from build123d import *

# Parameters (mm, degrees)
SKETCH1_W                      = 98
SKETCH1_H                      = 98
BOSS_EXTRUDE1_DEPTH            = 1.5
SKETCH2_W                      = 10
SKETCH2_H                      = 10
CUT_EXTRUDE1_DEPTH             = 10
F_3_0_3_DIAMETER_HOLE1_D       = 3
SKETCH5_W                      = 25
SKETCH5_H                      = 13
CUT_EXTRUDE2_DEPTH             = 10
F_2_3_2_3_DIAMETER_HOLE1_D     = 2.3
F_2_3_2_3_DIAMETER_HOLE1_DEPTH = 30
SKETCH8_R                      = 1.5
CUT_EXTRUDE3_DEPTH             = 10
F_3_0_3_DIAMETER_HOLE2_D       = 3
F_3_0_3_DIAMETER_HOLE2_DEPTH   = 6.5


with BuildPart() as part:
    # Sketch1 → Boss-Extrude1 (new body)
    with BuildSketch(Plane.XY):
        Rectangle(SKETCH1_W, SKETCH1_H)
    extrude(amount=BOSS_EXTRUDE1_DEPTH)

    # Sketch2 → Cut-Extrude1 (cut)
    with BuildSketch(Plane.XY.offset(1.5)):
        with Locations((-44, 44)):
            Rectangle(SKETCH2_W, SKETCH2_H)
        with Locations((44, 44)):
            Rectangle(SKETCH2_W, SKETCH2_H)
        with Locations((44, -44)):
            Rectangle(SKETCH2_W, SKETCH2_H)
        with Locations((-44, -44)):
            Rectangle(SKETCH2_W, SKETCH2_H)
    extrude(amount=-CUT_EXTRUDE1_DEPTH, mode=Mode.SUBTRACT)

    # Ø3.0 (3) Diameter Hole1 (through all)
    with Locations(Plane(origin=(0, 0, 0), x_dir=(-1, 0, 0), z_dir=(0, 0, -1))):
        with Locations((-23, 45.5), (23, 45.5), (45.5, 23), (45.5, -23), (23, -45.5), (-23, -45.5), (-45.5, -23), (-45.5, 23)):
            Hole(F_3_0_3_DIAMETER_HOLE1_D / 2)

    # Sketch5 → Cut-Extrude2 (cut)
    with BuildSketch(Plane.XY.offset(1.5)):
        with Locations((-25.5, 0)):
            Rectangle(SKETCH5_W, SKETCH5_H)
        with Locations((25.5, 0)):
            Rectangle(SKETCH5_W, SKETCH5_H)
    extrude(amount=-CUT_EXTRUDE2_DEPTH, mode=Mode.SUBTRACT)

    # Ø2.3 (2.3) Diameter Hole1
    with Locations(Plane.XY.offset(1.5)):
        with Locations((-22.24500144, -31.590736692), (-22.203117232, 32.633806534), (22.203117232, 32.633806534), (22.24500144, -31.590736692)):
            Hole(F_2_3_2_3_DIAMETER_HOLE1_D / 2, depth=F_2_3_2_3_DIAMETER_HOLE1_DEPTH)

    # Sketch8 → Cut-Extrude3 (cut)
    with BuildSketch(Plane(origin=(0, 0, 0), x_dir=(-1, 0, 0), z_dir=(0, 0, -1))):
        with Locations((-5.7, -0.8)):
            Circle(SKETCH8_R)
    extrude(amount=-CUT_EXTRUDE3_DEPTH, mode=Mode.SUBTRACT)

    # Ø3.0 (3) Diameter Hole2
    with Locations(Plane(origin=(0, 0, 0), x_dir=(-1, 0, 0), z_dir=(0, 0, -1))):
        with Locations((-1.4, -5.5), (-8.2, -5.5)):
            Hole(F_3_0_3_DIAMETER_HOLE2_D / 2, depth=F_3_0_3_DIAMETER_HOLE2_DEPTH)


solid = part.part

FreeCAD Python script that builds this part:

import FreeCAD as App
import Part
import Sketcher

V = App.Vector

doc = App.newDocument("Part")
body = doc.addObject("PartDesign::Body", "Body")

# Sketch on XY plane
sketch1 = doc.addObject("Sketcher::SketchObject", "Sketch")
body.addObject(sketch1)
sketch1.AttachmentSupport = (doc.XY_Plane, [""])
sketch1.MapMode = "FlatFace"
sketch1.addGeometry(Part.LineSegment(V(-49, 49, 0), V(-49, -49, 0)), False)
sketch1.addGeometry(Part.LineSegment(V(-49, -49, 0), V(49, -49, 0)), False)
sketch1.addGeometry(Part.LineSegment(V(49, -49, 0), V(49, 49, 0)), False)
sketch1.addGeometry(Part.LineSegment(V(49, 49, 0), V(-49, 49, 0)), False)
sketch1.addConstraint(Sketcher.Constraint("Coincident", 0, 2, 1, 1))
sketch1.addConstraint(Sketcher.Constraint("Coincident", 1, 2, 2, 1))
sketch1.addConstraint(Sketcher.Constraint("Coincident", 2, 2, 3, 1))
sketch1.addConstraint(Sketcher.Constraint("Coincident", 3, 2, 0, 1))
sketch1.addConstraint(Sketcher.Constraint("Vertical", 0))
sketch1.addConstraint(Sketcher.Constraint("Horizontal", 1))
sketch1.addConstraint(Sketcher.Constraint("Vertical", 2))
sketch1.addConstraint(Sketcher.Constraint("Horizontal", 3))
sketch1.addConstraint(Sketcher.Constraint("Symmetric", 0, 2, 2, 2, -1, 1))
sketch1.addConstraint(Sketcher.Constraint("Equal", 3, 0))
sketch1.addConstraint(Sketcher.Constraint("DistanceX", 1, 1, 1, 2, 98.0))
pad1 = doc.addObject("PartDesign::Pad", "Pad")
body.addObject(pad1)
pad1.Profile = sketch1
pad1.Length = 1.5

# Sketch on XY plane
sketch2 = doc.addObject("Sketcher::SketchObject", "Sketch001")
body.addObject(sketch2)
sketch2.AttachmentSupport = (doc.XY_Plane, [""])
sketch2.MapMode = "FlatFace"
sketch2.AttachmentOffset = App.Placement(V(0, 0, 1.5), App.Rotation())
sketch2.addGeometry(Part.LineSegment(V(-49, 49, 0), V(-49, 39, 0)), False)
sketch2.addGeometry(Part.LineSegment(V(-49, 39, 0), V(-39, 39, 0)), False)
sketch2.addGeometry(Part.LineSegment(V(-39, 39, 0), V(-39, 49, 0)), False)
sketch2.addGeometry(Part.LineSegment(V(-39, 49, 0), V(-49, 49, 0)), False)
sketch2.addGeometry(Part.LineSegment(V(39, 49, 0), V(39, 39, 0)), False)
sketch2.addGeometry(Part.LineSegment(V(39, 39, 0), V(49, 39, 0)), False)
sketch2.addGeometry(Part.LineSegment(V(49, 39, 0), V(49, 49, 0)), False)
sketch2.addGeometry(Part.LineSegment(V(49, 49, 0), V(39, 49, 0)), False)
sketch2.addGeometry(Part.LineSegment(V(39, -39, 0), V(39, -49, 0)), False)
sketch2.addGeometry(Part.LineSegment(V(39, -49, 0), V(49, -49, 0)), False)
sketch2.addGeometry(Part.LineSegment(V(49, -49, 0), V(49, -39, 0)), False)
sketch2.addGeometry(Part.LineSegment(V(49, -39, 0), V(39, -39, 0)), False)
sketch2.addGeometry(Part.LineSegment(V(-49, -39, 0), V(-49, -49, 0)), False)
sketch2.addGeometry(Part.LineSegment(V(-49, -49, 0), V(-39, -49, 0)), False)
sketch2.addGeometry(Part.LineSegment(V(-39, -49, 0), V(-39, -39, 0)), False)
sketch2.addGeometry(Part.LineSegment(V(-39, -39, 0), V(-49, -39, 0)), False)
sketch2.addConstraint(Sketcher.Constraint("Coincident", 0, 2, 1, 1))
sketch2.addConstraint(Sketcher.Constraint("Coincident", 1, 2, 2, 1))
sketch2.addConstraint(Sketcher.Constraint("Coincident", 2, 2, 3, 1))
sketch2.addConstraint(Sketcher.Constraint("Coincident", 3, 2, 0, 1))
sketch2.addConstraint(Sketcher.Constraint("Coincident", 4, 2, 5, 1))
sketch2.addConstraint(Sketcher.Constraint("Coincident", 5, 2, 6, 1))
sketch2.addConstraint(Sketcher.Constraint("Coincident", 6, 2, 7, 1))
sketch2.addConstraint(Sketcher.Constraint("Coincident", 7, 2, 4, 1))
sketch2.addConstraint(Sketcher.Constraint("Coincident", 8, 2, 9, 1))
sketch2.addConstraint(Sketcher.Constraint("Coincident", 9, 2, 10, 1))
sketch2.addConstraint(Sketcher.Constraint("Coincident", 10, 2, 11, 1))
sketch2.addConstraint(Sketcher.Constraint("Coincident", 11, 2, 8, 1))
sketch2.addConstraint(Sketcher.Constraint("Coincident", 12, 2, 13, 1))
sketch2.addConstraint(Sketcher.Constraint("Coincident", 13, 2, 14, 1))
sketch2.addConstraint(Sketcher.Constraint("Coincident", 14, 2, 15, 1))
sketch2.addConstraint(Sketcher.Constraint("Coincident", 15, 2, 12, 1))
sketch2.addConstraint(Sketcher.Constraint("Vertical", 0))
sketch2.addConstraint(Sketcher.Constraint("Horizontal", 1))
sketch2.addConstraint(Sketcher.Constraint("Vertical", 2))
sketch2.addConstraint(Sketcher.Constraint("Horizontal", 3))
sketch2.addConstraint(Sketcher.Constraint("Vertical", 4))
sketch2.addConstraint(Sketcher.Constraint("Horizontal", 5))
sketch2.addConstraint(Sketcher.Constraint("Vertical", 6))
sketch2.addConstraint(Sketcher.Constraint("Horizontal", 7))
sketch2.addConstraint(Sketcher.Constraint("Vertical", 8))
sketch2.addConstraint(Sketcher.Constraint("Horizontal", 9))
sketch2.addConstraint(Sketcher.Constraint("Vertical", 10))
sketch2.addConstraint(Sketcher.Constraint("Horizontal", 11))
sketch2.addConstraint(Sketcher.Constraint("Vertical", 12))
sketch2.addConstraint(Sketcher.Constraint("Horizontal", 13))
sketch2.addConstraint(Sketcher.Constraint("Vertical", 14))
sketch2.addConstraint(Sketcher.Constraint("Horizontal", 15))
sketch2.addConstraint(Sketcher.Constraint("Symmetric", 2, 2, 8, 2, -1, 1))
sketch2.addConstraint(Sketcher.Constraint("Symmetric", 0, 2, 10, 2, -1, 1))
sketch2.addConstraint(Sketcher.Constraint("Symmetric", 6, 2, 12, 2, -1, 1))
sketch2.addConstraint(Sketcher.Constraint("Symmetric", 4, 2, 14, 2, -1, 1))
sketch2.addConstraint(Sketcher.Constraint("Symmetric", 1, 2, 4, 2, -2))
sketch2.addConstraint(Sketcher.Constraint("Symmetric", 3, 2, 6, 2, -2))
sketch2.addConstraint(Sketcher.Constraint("Equal", 15, 0))
sketch2.addConstraint(Sketcher.Constraint("DistanceX", 1, 1, 1, 2, 10.0))
sketch2.addConstraint(Sketcher.Constraint("DistanceX", 0, 2, -1, 1, 49.0))
sketch2.addConstraint(Sketcher.Constraint("DistanceY", -1, 1, 0, 2, 39.0))
pocket1 = doc.addObject("PartDesign::Pocket", "Pocket")
body.addObject(pocket1)
pocket1.Profile = sketch2
pocket1.Length = 10

# Sketch on XY plane
sketch3 = doc.addObject("Sketcher::SketchObject", "Sketch002")
body.addObject(sketch3)
sketch3.AttachmentSupport = (doc.XY_Plane, [""])
sketch3.MapMode = "FlatFace"
sketch3.addGeometry(Part.Circle(V(23, 45.5, 0), V(0, 0, 1), 1.5), False)
sketch3.addGeometry(Part.Circle(V(-23, 45.5, 0), V(0, 0, 1), 1.5), False)
sketch3.addGeometry(Part.Circle(V(-45.5, 23, 0), V(0, 0, 1), 1.5), False)
sketch3.addGeometry(Part.Circle(V(-45.5, -23, 0), V(0, 0, 1), 1.5), False)
sketch3.addGeometry(Part.Circle(V(-23, -45.5, 0), V(0, 0, 1), 1.5), False)
sketch3.addGeometry(Part.Circle(V(23, -45.5, 0), V(0, 0, 1), 1.5), False)
sketch3.addGeometry(Part.Circle(V(45.5, -23, 0), V(0, 0, 1), 1.5), False)
sketch3.addGeometry(Part.Circle(V(45.5, 23, 0), V(0, 0, 1), 1.5), False)
sketch3.addConstraint(Sketcher.Constraint("Equal", 0, 1))
sketch3.addConstraint(Sketcher.Constraint("Equal", 1, 2))
sketch3.addConstraint(Sketcher.Constraint("Equal", 2, 3))
sketch3.addConstraint(Sketcher.Constraint("Equal", 3, 4))
sketch3.addConstraint(Sketcher.Constraint("Equal", 4, 5))
sketch3.addConstraint(Sketcher.Constraint("Equal", 5, 6))
sketch3.addConstraint(Sketcher.Constraint("Equal", 6, 7))
sketch3.addConstraint(Sketcher.Constraint("Symmetric", 0, 3, 4, 3, -1, 1))
sketch3.addConstraint(Sketcher.Constraint("Symmetric", 1, 3, 5, 3, -1, 1))
sketch3.addConstraint(Sketcher.Constraint("Symmetric", 2, 3, 6, 3, -1, 1))
sketch3.addConstraint(Sketcher.Constraint("Symmetric", 3, 3, 7, 3, -1, 1))
sketch3.addConstraint(Sketcher.Constraint("Symmetric", 0, 3, 1, 3, -2))
sketch3.addConstraint(Sketcher.Constraint("Symmetric", 3, 3, 6, 3, -2))
sketch3.addConstraint(Sketcher.Constraint("Diameter", 0, 3.0))
sketch3.addConstraint(Sketcher.Constraint("DistanceX", -1, 1, 0, 3, 23.0))
sketch3.addConstraint(Sketcher.Constraint("DistanceY", -1, 1, 2, 3, 23.0))
sketch3.addConstraint(Sketcher.Constraint("DistanceY", 4, 3, 1, 3, 91.0))
sketch3.addConstraint(Sketcher.Constraint("DistanceX", 3, 3, 6, 3, 91.0))
doc.recompute()
hole = doc.addObject("PartDesign::Hole", "Hole")
body.addObject(hole)
hole.Profile = sketch3
hole.ThreadType = "None"
hole.Diameter = 3
hole.DepthType = "ThroughAll"
hole.Reversed = True

# Sketch on XY plane
sketch4 = doc.addObject("Sketcher::SketchObject", "Sketch003")
body.addObject(sketch4)
sketch4.AttachmentSupport = (doc.XY_Plane, [""])
sketch4.MapMode = "FlatFace"
sketch4.AttachmentOffset = App.Placement(V(0, 0, 1.5), App.Rotation())
sketch4.addGeometry(Part.LineSegment(V(-38, 6, 0), V(-38, -6, 0)), False)
sketch4.addGeometry(Part.LineSegment(V(-38, -6, 0), V(-13, -6, 0)), False)
sketch4.addGeometry(Part.LineSegment(V(-13, -6, 0), V(-13, 6, 0)), False)
sketch4.addGeometry(Part.LineSegment(V(-13, 6, 0), V(-38, 6, 0)), False)
sketch4.addGeometry(Part.LineSegment(V(13, 6, 0), V(13, -6, 0)), False)
sketch4.addGeometry(Part.LineSegment(V(13, -6, 0), V(38, -6, 0)), False)
sketch4.addGeometry(Part.LineSegment(V(38, -6, 0), V(38, 6, 0)), False)
sketch4.addGeometry(Part.LineSegment(V(38, 6, 0), V(13, 6, 0)), False)
sketch4.addConstraint(Sketcher.Constraint("Coincident", 0, 2, 1, 1))
sketch4.addConstraint(Sketcher.Constraint("Coincident", 1, 2, 2, 1))
sketch4.addConstraint(Sketcher.Constraint("Coincident", 2, 2, 3, 1))
sketch4.addConstraint(Sketcher.Constraint("Coincident", 3, 2, 0, 1))
sketch4.addConstraint(Sketcher.Constraint("Coincident", 4, 2, 5, 1))
sketch4.addConstraint(Sketcher.Constraint("Coincident", 5, 2, 6, 1))
sketch4.addConstraint(Sketcher.Constraint("Coincident", 6, 2, 7, 1))
sketch4.addConstraint(Sketcher.Constraint("Coincident", 7, 2, 4, 1))
sketch4.addConstraint(Sketcher.Constraint("Vertical", 0))
sketch4.addConstraint(Sketcher.Constraint("Horizontal", 1))
sketch4.addConstraint(Sketcher.Constraint("Vertical", 2))
sketch4.addConstraint(Sketcher.Constraint("Horizontal", 3))
sketch4.addConstraint(Sketcher.Constraint("Vertical", 4))
sketch4.addConstraint(Sketcher.Constraint("Horizontal", 5))
sketch4.addConstraint(Sketcher.Constraint("Vertical", 6))
sketch4.addConstraint(Sketcher.Constraint("Horizontal", 7))
sketch4.addConstraint(Sketcher.Constraint("Symmetric", 2, 2, 4, 2, -1, 1))
sketch4.addConstraint(Sketcher.Constraint("Symmetric", 0, 2, 6, 2, -1, 1))
sketch4.addConstraint(Sketcher.Constraint("Horizontal", 1, 2, 4, 2))
sketch4.addConstraint(Sketcher.Constraint("DistanceX", 1, 1, 1, 2, 25.0))
sketch4.addConstraint(Sketcher.Constraint("DistanceY", 0, 2, 0, 1, 13.0))
sketch4.addConstraint(Sketcher.Constraint("DistanceX", 0, 2, -1, 1, 38.0))
pocket2 = doc.addObject("PartDesign::Pocket", "Pocket001")
body.addObject(pocket2)
pocket2.Profile = sketch4
pocket2.Length = 10

# Sketch on XY plane
sketch5 = doc.addObject("Sketcher::SketchObject", "Sketch004")
body.addObject(sketch5)
sketch5.AttachmentSupport = (doc.XY_Plane, [""])
sketch5.MapMode = "FlatFace"
sketch5.AttachmentOffset = App.Placement(V(0, 0, 1.5), App.Rotation())
sketch5.addGeometry(Part.Circle(V(-22.2, -31.6, 0), V(0, 0, 1), 1.1), False)
sketch5.addGeometry(Part.Circle(V(-22.2, 32.6, 0), V(0, 0, 1), 1.1), False)
sketch5.addGeometry(Part.Circle(V(22.2, 32.6, 0), V(0, 0, 1), 1.1), False)
sketch5.addGeometry(Part.Circle(V(22.2, -31.6, 0), V(0, 0, 1), 1.1), False)
sketch5.addConstraint(Sketcher.Constraint("Equal", 0, 1))
sketch5.addConstraint(Sketcher.Constraint("Equal", 1, 2))
sketch5.addConstraint(Sketcher.Constraint("Equal", 2, 3))
sketch5.addConstraint(Sketcher.Constraint("Symmetric", 1, 3, 2, 3, -2))
sketch5.addConstraint(Sketcher.Constraint("Symmetric", 0, 3, 3, 3, -2))
sketch5.addConstraint(Sketcher.Constraint("Diameter", 0, 2.3))
sketch5.addConstraint(Sketcher.Constraint("DistanceX", 0, 3, -1, 1, 22.245001))
sketch5.addConstraint(Sketcher.Constraint("DistanceX", 0, 3, 2, 3, 44.448119))
sketch5.addConstraint(Sketcher.Constraint("DistanceY", 0, 3, -1, 1, 31.590737))
sketch5.addConstraint(Sketcher.Constraint("DistanceY", -1, 1, 1, 3, 32.633807))
doc.recompute()
hole2 = doc.addObject("PartDesign::Hole", "Hole001")
body.addObject(hole2)
hole2.Profile = sketch5
hole2.ThreadType = "None"
hole2.Diameter = 2.3
hole2.DepthType = "Dimension"
hole2.Depth = 30
hole2.DrillPoint = "Flat"

# Sketch on XY plane
sketch6 = doc.addObject("Sketcher::SketchObject", "Sketch005")
body.addObject(sketch6)
sketch6.AttachmentSupport = (doc.XY_Plane, [""])
sketch6.MapMode = "FlatFace"
sketch6.addGeometry(Part.Circle(V(5.7, -0.8, 0), V(0, 0, 1), 1.5), False)
sketch6.addConstraint(Sketcher.Constraint("Diameter", 0, 3.0))
sketch6.addConstraint(Sketcher.Constraint("DistanceX", -1, 1, 0, 3, 5.7))
sketch6.addConstraint(Sketcher.Constraint("DistanceY", 0, 3, -1, 1, 0.8))
pocket3 = doc.addObject("PartDesign::Pocket", "Pocket002")
body.addObject(pocket3)
pocket3.Profile = sketch6
pocket3.Length = 10
pocket3.Reversed = True

# Sketch on XY plane
sketch7 = doc.addObject("Sketcher::SketchObject", "Sketch006")
body.addObject(sketch7)
sketch7.AttachmentSupport = (doc.XY_Plane, [""])
sketch7.MapMode = "FlatFace"
sketch7.addGeometry(Part.Circle(V(1.4, -5.5, 0), V(0, 0, 1), 1.5), False)
sketch7.addGeometry(Part.Circle(V(8.2, -5.5, 0), V(0, 0, 1), 1.5), False)
sketch7.addConstraint(Sketcher.Constraint("Equal", 0, 1))
sketch7.addConstraint(Sketcher.Constraint("Horizontal", 0, 3, 1, 3))
sketch7.addConstraint(Sketcher.Constraint("Diameter", 0, 3.0))
sketch7.addConstraint(Sketcher.Constraint("DistanceX", -1, 1, 0, 3, 1.4))
sketch7.addConstraint(Sketcher.Constraint("DistanceY", 0, 3, -1, 1, 5.5))
sketch7.addConstraint(Sketcher.Constraint("DistanceX", -1, 1, 1, 3, 8.2))
doc.recompute()
hole3 = doc.addObject("PartDesign::Hole", "Hole002")
body.addObject(hole3)
hole3.Profile = sketch7
hole3.ThreadType = "None"
hole3.Diameter = 3
hole3.DepthType = "Dimension"
hole3.Depth = 6.5
hole3.DrillPoint = "Flat"
hole3.Reversed = True

doc.recompute()
